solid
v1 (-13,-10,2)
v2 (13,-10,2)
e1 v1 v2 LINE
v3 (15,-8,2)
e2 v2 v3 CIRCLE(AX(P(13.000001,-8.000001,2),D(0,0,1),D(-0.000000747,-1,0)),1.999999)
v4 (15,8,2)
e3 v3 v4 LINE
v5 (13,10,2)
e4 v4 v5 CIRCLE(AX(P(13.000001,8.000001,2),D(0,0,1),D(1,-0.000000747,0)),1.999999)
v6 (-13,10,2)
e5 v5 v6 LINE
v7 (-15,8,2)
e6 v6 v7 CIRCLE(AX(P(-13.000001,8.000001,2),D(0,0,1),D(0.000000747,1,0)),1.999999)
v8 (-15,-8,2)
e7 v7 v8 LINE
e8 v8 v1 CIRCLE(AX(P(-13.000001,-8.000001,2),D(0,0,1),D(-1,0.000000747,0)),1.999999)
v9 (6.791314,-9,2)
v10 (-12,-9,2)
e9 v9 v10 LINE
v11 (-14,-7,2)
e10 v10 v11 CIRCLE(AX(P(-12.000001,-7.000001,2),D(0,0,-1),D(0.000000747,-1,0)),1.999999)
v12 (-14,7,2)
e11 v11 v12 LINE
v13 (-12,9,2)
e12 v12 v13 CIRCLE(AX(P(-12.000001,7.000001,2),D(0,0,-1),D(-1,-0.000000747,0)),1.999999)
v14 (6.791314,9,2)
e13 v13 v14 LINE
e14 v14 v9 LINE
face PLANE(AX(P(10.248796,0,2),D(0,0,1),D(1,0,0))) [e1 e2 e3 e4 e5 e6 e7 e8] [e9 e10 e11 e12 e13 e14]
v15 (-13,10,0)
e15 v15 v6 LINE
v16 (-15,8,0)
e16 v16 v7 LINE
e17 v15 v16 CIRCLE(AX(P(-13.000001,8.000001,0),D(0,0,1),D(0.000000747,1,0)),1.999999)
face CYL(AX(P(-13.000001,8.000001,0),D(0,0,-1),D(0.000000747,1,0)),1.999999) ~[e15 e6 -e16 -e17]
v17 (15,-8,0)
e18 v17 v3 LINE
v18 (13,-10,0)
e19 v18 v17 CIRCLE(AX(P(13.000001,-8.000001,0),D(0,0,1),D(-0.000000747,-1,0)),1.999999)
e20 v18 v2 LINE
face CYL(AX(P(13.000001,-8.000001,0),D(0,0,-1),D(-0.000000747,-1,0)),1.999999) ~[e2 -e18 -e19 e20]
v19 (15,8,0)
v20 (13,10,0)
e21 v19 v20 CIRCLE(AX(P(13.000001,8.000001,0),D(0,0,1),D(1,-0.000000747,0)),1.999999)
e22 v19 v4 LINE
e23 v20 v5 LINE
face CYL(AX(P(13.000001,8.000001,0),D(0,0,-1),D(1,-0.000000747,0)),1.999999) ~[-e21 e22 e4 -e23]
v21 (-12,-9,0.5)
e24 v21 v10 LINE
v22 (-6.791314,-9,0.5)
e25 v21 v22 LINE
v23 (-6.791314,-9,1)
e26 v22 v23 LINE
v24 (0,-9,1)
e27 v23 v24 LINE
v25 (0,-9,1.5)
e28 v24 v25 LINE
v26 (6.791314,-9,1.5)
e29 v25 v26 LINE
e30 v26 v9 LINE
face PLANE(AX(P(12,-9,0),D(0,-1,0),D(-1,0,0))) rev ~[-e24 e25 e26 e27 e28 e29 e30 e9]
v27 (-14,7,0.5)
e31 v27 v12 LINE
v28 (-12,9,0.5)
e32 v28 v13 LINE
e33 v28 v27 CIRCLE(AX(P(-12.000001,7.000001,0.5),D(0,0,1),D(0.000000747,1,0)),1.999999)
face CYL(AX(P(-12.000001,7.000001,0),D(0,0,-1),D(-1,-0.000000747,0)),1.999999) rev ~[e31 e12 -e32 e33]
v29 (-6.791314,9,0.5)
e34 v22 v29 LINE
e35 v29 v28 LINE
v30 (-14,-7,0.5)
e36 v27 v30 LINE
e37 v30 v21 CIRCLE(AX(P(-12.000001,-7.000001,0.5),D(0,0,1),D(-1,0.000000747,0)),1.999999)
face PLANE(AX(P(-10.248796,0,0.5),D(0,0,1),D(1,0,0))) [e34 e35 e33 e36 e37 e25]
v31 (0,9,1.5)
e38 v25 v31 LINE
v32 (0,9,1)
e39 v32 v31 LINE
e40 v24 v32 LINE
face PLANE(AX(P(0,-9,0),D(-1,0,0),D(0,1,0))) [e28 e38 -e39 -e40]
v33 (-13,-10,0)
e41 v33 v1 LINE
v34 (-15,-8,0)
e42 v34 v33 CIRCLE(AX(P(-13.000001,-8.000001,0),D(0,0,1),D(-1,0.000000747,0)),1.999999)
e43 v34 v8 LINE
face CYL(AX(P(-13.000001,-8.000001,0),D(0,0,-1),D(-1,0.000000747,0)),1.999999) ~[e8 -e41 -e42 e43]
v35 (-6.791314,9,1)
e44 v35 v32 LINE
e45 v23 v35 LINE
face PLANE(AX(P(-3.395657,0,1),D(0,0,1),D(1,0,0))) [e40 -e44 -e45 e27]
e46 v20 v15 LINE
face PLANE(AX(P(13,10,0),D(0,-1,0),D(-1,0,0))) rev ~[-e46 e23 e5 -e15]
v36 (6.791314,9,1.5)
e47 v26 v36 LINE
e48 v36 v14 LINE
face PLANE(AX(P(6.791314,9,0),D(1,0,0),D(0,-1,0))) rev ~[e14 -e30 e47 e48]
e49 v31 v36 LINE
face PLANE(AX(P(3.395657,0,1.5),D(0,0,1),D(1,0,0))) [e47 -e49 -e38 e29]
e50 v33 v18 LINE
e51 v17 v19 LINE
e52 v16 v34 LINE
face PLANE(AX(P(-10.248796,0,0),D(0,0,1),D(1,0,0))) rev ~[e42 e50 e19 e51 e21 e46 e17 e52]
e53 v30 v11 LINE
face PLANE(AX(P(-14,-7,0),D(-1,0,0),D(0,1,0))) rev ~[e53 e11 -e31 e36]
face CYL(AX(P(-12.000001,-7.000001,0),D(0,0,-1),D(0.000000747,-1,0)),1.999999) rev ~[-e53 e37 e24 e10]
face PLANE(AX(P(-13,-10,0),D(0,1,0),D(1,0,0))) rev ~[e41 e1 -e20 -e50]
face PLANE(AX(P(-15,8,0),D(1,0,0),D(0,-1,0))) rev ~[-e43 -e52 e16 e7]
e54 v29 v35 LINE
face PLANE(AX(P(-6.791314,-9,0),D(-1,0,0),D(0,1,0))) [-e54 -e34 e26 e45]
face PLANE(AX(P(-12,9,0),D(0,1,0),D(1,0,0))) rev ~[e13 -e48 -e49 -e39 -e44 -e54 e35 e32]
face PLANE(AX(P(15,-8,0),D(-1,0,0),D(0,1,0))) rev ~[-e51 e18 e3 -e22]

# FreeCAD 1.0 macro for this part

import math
import FreeCAD as App
import Part
import Sketcher

V = App.Vector


def add_polygon(sketch, points):
    """Adds a closed chain of lines whose ends are joined by coincident constraints."""
    first, n = sketch.GeometryCount, len(points)
    for a, b in zip(points, points[1:] + points[:1]):
        sketch.addGeometry(Part.LineSegment(App.Vector(*a, 0), App.Vector(*b, 0)), False)
    for i in range(n):
        sketch.addConstraint(Sketcher.Constraint("Coincident", first + i, 2, first + (i + 1) % n, 1))

doc = App.newDocument("Part")
body = doc.addObject("PartDesign::Body", "Body")

sketch1 = body.newObject("Sketcher::SketchObject", "Sketch")
sketch1.AttachmentSupport = (doc.getObject("XY_Plane"), [""])
sketch1.MapMode = "FlatFace"
sketch1.addGeometry([
    Part.ArcOfCircle(Part.Circle(V(-13, -8, 0), V(0, 0, 1), 2), math.radians(180), math.radians(270)),
    Part.LineSegment(V(-13, -10, 0), V(13, -10, 0)),
    Part.ArcOfCircle(Part.Circle(V(13, -8, 0), V(0, 0, 1), 2), math.radians(-90), math.radians(0)),
    Part.LineSegment(V(15, -8, 0), V(15, 8, 0)),
    Part.ArcOfCircle(Part.Circle(V(13, 8, 0), V(0, 0, 1), 2), math.radians(0), math.radians(90)),
    Part.LineSegment(V(13, 10, 0), V(-13, 10, 0)),
    Part.ArcOfCircle(Part.Circle(V(-13, 8, 0), V(0, 0, 1), 2), math.radians(90), math.radians(180)),
    Part.LineSegment(V(-15, 8, 0), V(-15, -8, 0)),
    Part.LineSegment(V(-14, -7, 0), V(-14, 7, 0)),
    Part.ArcOfCircle(Part.Circle(V(-12, 7, 0), V(0, 0, 1), 2), math.radians(90), math.radians(180)),
    Part.LineSegment(V(-12, 9, 0), V(12, 9, 0)),
    Part.ArcOfCircle(Part.Circle(V(12, 7, 0), V(0, 0, 1), 2), math.radians(0), math.radians(90)),
    Part.LineSegment(V(14, 7, 0), V(14, -7, 0)),
    Part.ArcOfCircle(Part.Circle(V(12, -7, 0), V(0, 0, 1), 2), math.radians(-90), math.radians(0)),
    Part.LineSegment(V(12, -9, 0), V(-12, -9, 0)),
    Part.ArcOfCircle(Part.Circle(V(-12, -7, 0), V(0, 0, 1), 2), math.radians(180), math.radians(270)),
], False)
sketch1.addConstraint([
    Sketcher.Constraint("Tangent", 0, 2, 1, 1),
    Sketcher.Constraint("Tangent", 1, 2, 2, 1),
    Sketcher.Constraint("Tangent", 2, 2, 3, 1),
    Sketcher.Constraint("Tangent", 3, 2, 4, 1),
    Sketcher.Constraint("Tangent", 4, 2, 5, 1),
    Sketcher.Constraint("Tangent", 5, 2, 6, 1),
    Sketcher.Constraint("Tangent", 6, 2, 7, 1),
    Sketcher.Constraint("Tangent", 7, 2, 0, 1),
    Sketcher.Constraint("Tangent", 8, 2, 9, 2),
    Sketcher.Constraint("Tangent", 9, 1, 10, 1),
    Sketcher.Constraint("Tangent", 10, 2, 11, 2),
    Sketcher.Constraint("Tangent", 11, 1, 12, 1),
    Sketcher.Constraint("Tangent", 12, 2, 13, 2),
    Sketcher.Constraint("Tangent", 13, 1, 14, 1),
    Sketcher.Constraint("Tangent", 14, 2, 15, 2),
    Sketcher.Constraint("Tangent", 15, 1, 8, 1),
    Sketcher.Constraint("Horizontal", 1),
    Sketcher.Constraint("Vertical", 3),
    Sketcher.Constraint("Horizontal", 5),
    Sketcher.Constraint("Vertical", 7),
    Sketcher.Constraint("Vertical", 8),
    Sketcher.Constraint("Horizontal", 10),
    Sketcher.Constraint("Vertical", 12),
    Sketcher.Constraint("Horizontal", 14),
    Sketcher.Constraint("Equal", 0, 2),
    Sketcher.Constraint("Equal", 2, 4),
    Sketcher.Constraint("Equal", 4, 6),
    Sketcher.Constraint("Equal", 6, 9),
    Sketcher.Constraint("Equal", 9, 11),
    Sketcher.Constraint("Equal", 11, 13),
    Sketcher.Constraint("Equal", 13, 15),
    Sketcher.Constraint("Symmetric", 0, 3, 4, 3, -1, 1),
    Sketcher.Constraint("Symmetric", 9, 3, 13, 3, -1, 1),
    Sketcher.Constraint("Radius", 0, 1.999999),
    Sketcher.Constraint("DistanceX", 1, 1, 1, 2, 26.0),
    Sketcher.Constraint("DistanceX", 10, 1, 10, 2, 24.0),
    Sketcher.Constraint("DistanceY", 3, 1, 3, 2, 16.0),
    Sketcher.Constraint("DistanceY", 8, 1, 8, 2, 14.0),
])
pad1 = body.newObject("PartDesign::Pad", "Pad")
pad1.Profile = sketch1
pad1.Length = 2

sketch2 = body.newObject("Sketcher::SketchObject", "Sketch001")
sketch2.AttachmentSupport = (doc.getObject("XY_Plane"), [""])
sketch2.MapMode = "FlatFace"
sketch2.addGeometry([
    Part.LineSegment(V(-6.8, 9, 0), V(-12, 9, 0)),
    Part.ArcOfCircle(Part.Circle(V(-12, 7, 0), V(0, 0, 1), 2), math.radians(90), math.radians(180)),
    Part.LineSegment(V(-14, 7, 0), V(-14, -7, 0)),
    Part.ArcOfCircle(Part.Circle(V(-12, -7, 0), V(0, 0, 1), 2), math.radians(180), math.radians(270)),
    Part.LineSegment(V(-12, -9, 0), V(-6.8, -9, 0)),
    Part.LineSegment(V(-6.8, -9, 0), V(-6.8, 9, 0)),
], False)
sketch2.addConstraint([
    Sketcher.Constraint("Tangent", 0, 2, 1, 1),
    Sketcher.Constraint("Tangent", 1, 2, 2, 1),
    Sketcher.Constraint("Tangent", 2, 2, 3, 1),
    Sketcher.Constraint("Tangent", 3, 2, 4, 1),
    Sketcher.Constraint("Coincident", 4, 2, 5, 1),
    Sketcher.Constraint("Coincident", 5, 2, 0, 1),
    Sketcher.Constraint("Horizontal", 0),
    Sketcher.Constraint("Vertical", 2),
    Sketcher.Constraint("Horizontal", 4),
    Sketcher.Constraint("Vertical", 5),
    Sketcher.Constraint("Equal", 1, 3),
    Sketcher.Constraint("Radius", 1, 1.999999),
    Sketcher.Constraint("DistanceY", 2, 2, 2, 1, 14.0),
    Sketcher.Constraint("DistanceX", 1, 3, -1, 1, 12.000001),
    Sketcher.Constraint("DistanceY", -1, 1, 1, 3, 7.000001),
    Sketcher.Constraint("DistanceX", 0, 2, 0, 1, 5.208686),
])
pad2 = body.newObject("PartDesign::Pad", "Pad001")
pad2.Profile = sketch2
pad2.Length = 0.5

sketch3 = body.newObject("Sketcher::SketchObject", "Sketch002")
sketch3.AttachmentSupport = (doc.getObject("XY_Plane"), [""])
sketch3.MapMode = "FlatFace"
add_polygon(sketch3, [(0, 9), (0, -9), (7, -9), (7, 9)])
sketch3.addConstraint([
    Sketcher.Constraint("Vertical", 0),
    Sketcher.Constraint("Horizontal", 1),
    Sketcher.Constraint("Vertical", 2),
    Sketcher.Constraint("Horizontal", 3),
    Sketcher.Constraint("Symmetric", 0, 2, 3, 2, -1, 1),
    Sketcher.Constraint("DistanceY", 0, 2, 0, 1, 18.0),
    Sketcher.Constraint("DistanceX", 1, 1, 1, 2, 6.791314),
])
pad3 = body.newObject("PartDesign::Pad", "Pad002")
pad3.Profile = sketch3
pad3.Length = 1.5

sketch4 = body.newObject("Sketcher::SketchObject", "Sketch003")
sketch4.AttachmentSupport = (doc.getObject("XY_Plane"), [""])
sketch4.MapMode = "FlatFace"
add_polygon(sketch4, [(-7, 9), (-7, -9), (0, -9), (0, 9)])
sketch4.addConstraint([
    Sketcher.Constraint("Vertical", 0),
    Sketcher.Constraint("Horizontal", 1),
    Sketcher.Constraint("Vertical", 2),
    Sketcher.Constraint("Horizontal", 3),
    Sketcher.Constraint("Symmetric", 1, 2, 2, 2, -1, 1),
    Sketcher.Constraint("DistanceY", 0, 2, 0, 1, 18.0),
    Sketcher.Constraint("DistanceX", 1, 1, 1, 2, 6.791314),
])
pad4 = body.newObject("PartDesign::Pad", "Pad003")
pad4.Profile = sketch4
pad4.Length = 1

sketch5 = body.newObject("Sketcher::SketchObject", "Sketch004")
sketch5.AttachmentSupport = (doc.getObject("XY_Plane"), [""])
sketch5.MapMode = "FlatFace"
sketch5.addGeometry([
    Part.LineSegment(V(12, 9, 0), V(6.8, 9, 0)),
    Part.LineSegment(V(6.8, 9, 0), V(6.8, -9, 0)),
    Part.LineSegment(V(6.8, -9, 0), V(12, -9, 0)),
    Part.ArcOfCircle(Part.Circle(V(12, -7, 0), V(0, 0, 1), 2), math.radians(-90), math.radians(0)),
    Part.LineSegment(V(14, -7, 0), V(14, 7, 0)),
    Part.ArcOfCircle(Part.Circle(V(12, 7, 0), V(0, 0, 1), 2), math.radians(0), math.radians(90)),
], False)
sketch5.addConstraint([
    Sketcher.Constraint("Coincident", 0, 2, 1, 1),
    Sketcher.Constraint("Coincident", 1, 2, 2, 1),
    Sketcher.Constraint("Tangent", 2, 2, 3, 1),
    Sketcher.Constraint("Tangent", 3, 2, 4, 1),
    Sketcher.Constraint("Tangent", 4, 2, 5, 1),
    Sketcher.Constraint("Tangent", 5, 2, 0, 1),
    Sketcher.Constraint("Horizontal", 0),
    Sketcher.Constraint("Vertical", 1),
    Sketcher.Constraint("Horizontal", 2),
    Sketcher.Constraint("Vertical", 4),
    Sketcher.Constraint("Equal", 3, 5),
    Sketcher.Constraint("Radius", 3, 1.999999),
    Sketcher.Constraint("DistanceY", 1, 2, 1, 1, 18.0),
    Sketcher.Constraint("DistanceX", -1, 1, 3, 3, 12.000001),
    Sketcher.Constraint("DistanceY", 3, 3, -1, 1, 7.000001),
    Sketcher.Constraint("DistanceX", 0, 2, 0, 1, 5.208686),
])
pad5 = body.newObject("PartDesign::Pad", "Pad004")
pad5.Profile = sketch5
pad5.Length = 2

doc.recompute()
